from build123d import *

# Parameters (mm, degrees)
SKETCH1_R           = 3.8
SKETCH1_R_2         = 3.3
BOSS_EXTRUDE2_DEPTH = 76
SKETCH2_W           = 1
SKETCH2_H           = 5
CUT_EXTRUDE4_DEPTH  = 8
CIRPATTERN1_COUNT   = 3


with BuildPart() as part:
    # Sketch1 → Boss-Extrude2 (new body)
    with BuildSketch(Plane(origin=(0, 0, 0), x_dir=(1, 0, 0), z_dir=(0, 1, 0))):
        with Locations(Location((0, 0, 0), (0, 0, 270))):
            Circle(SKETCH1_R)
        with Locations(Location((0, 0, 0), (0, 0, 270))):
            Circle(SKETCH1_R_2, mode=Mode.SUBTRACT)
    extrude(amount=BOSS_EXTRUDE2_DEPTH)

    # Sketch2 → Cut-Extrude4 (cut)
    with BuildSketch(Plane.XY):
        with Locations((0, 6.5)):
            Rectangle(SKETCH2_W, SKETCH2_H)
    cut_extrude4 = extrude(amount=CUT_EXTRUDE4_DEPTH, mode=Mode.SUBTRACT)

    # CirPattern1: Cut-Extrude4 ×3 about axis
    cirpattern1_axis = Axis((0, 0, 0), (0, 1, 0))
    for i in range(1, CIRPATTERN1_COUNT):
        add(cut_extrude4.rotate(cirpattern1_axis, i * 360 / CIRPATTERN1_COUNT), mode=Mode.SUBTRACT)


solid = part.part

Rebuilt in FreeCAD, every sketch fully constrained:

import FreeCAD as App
import Part
import Sketcher

doc = App.newDocument("Part")
body = doc.addObject("PartDesign::Body", "Body")

# Sketch on XZ plane
sketch1 = body.newObject("Sketcher::SketchObject", "Sketch")
sketch1.AttachmentSupport = (doc.getObject("XZ_Plane"), [""])
sketch1.MapMode = "FlatFace"
sketch1.addGeometry([
    Part.Circle(App.Vector(0, 0, 0), App.Vector(0, 0, 1), 3.8),
    Part.Circle(App.Vector(0, 0, 0), App.Vector(0, 0, 1), 3.3),
], False)
sketch1.addConstraint([
    Sketcher.Constraint("Coincident", 0, 3, -1, 1),
    Sketcher.Constraint("Coincident", 1, 3, -1, 1),
    Sketcher.Constraint("Diameter", 0, 7.6),
    Sketcher.Constraint("Diameter", 1, 6.6),
])
pad1 = body.newObject("PartDesign::Pad", "Pad")
pad1.Profile = sketch1
pad1.Length = 76
pad1.Reversed = True

# Sketch on XY plane
sketch2 = body.newObject("Sketcher::SketchObject", "Sketch001")
sketch2.AttachmentSupport = (doc.getObject("XY_Plane"), [""])
sketch2.MapMode = "FlatFace"
sketch2.addGeometry([
    Part.LineSegment(App.Vector(-0.5, 9, 0), App.Vector(-0.5, 4, 0)),
    Part.LineSegment(App.Vector(-0.5, 4, 0), App.Vector(0.5, 4, 0)),
    Part.LineSegment(App.Vector(0.5, 4, 0), App.Vector(0.5, 9, 0)),
    Part.LineSegment(App.Vector(0.5, 9, 0), App.Vector(-0.5, 9, 0)),
], False)
sketch2.addConstraint([
    Sketcher.Constraint("Coincident", 0, 2, 1, 1),
    Sketcher.Constraint("Coincident", 1, 2, 2, 1),
    Sketcher.Constraint("Coincident", 2, 2, 3, 1),
    Sketcher.Constraint("Coincident", 3, 2, 0, 1),
    Sketcher.Constraint("Vertical", 0),
    Sketcher.Constraint("Horizontal", 1),
    Sketcher.Constraint("Vertical", 2),
    Sketcher.Constraint("Horizontal", 3),
    Sketcher.Constraint("DistanceX", 1, 1, 1, 2, 1.0),
    Sketcher.Constraint("DistanceY", 0, 2, 0, 1, 5.0),
    Sketcher.Constraint("DistanceY", -1, 1, 0, 2, 4.0),
    Sketcher.Constraint("DistanceX", 0, 2, -1, 1, 0.5),
])
pocket1 = body.newObject("PartDesign::Pocket", "Pocket")
pocket1.Profile = sketch2
pocket1.Length = 8
pocket1.Reversed = True
doc.recompute()

polarpattern = body.newObject("PartDesign::PolarPattern", "PolarPattern")
polarpattern.Originals = [pocket1]
polarpattern.Axis = (doc.getObject("Y_Axis"), [""])
polarpattern.Angle = 360
polarpattern.Occurrences = 3
body.Tip = polarpattern

doc.recompute()
